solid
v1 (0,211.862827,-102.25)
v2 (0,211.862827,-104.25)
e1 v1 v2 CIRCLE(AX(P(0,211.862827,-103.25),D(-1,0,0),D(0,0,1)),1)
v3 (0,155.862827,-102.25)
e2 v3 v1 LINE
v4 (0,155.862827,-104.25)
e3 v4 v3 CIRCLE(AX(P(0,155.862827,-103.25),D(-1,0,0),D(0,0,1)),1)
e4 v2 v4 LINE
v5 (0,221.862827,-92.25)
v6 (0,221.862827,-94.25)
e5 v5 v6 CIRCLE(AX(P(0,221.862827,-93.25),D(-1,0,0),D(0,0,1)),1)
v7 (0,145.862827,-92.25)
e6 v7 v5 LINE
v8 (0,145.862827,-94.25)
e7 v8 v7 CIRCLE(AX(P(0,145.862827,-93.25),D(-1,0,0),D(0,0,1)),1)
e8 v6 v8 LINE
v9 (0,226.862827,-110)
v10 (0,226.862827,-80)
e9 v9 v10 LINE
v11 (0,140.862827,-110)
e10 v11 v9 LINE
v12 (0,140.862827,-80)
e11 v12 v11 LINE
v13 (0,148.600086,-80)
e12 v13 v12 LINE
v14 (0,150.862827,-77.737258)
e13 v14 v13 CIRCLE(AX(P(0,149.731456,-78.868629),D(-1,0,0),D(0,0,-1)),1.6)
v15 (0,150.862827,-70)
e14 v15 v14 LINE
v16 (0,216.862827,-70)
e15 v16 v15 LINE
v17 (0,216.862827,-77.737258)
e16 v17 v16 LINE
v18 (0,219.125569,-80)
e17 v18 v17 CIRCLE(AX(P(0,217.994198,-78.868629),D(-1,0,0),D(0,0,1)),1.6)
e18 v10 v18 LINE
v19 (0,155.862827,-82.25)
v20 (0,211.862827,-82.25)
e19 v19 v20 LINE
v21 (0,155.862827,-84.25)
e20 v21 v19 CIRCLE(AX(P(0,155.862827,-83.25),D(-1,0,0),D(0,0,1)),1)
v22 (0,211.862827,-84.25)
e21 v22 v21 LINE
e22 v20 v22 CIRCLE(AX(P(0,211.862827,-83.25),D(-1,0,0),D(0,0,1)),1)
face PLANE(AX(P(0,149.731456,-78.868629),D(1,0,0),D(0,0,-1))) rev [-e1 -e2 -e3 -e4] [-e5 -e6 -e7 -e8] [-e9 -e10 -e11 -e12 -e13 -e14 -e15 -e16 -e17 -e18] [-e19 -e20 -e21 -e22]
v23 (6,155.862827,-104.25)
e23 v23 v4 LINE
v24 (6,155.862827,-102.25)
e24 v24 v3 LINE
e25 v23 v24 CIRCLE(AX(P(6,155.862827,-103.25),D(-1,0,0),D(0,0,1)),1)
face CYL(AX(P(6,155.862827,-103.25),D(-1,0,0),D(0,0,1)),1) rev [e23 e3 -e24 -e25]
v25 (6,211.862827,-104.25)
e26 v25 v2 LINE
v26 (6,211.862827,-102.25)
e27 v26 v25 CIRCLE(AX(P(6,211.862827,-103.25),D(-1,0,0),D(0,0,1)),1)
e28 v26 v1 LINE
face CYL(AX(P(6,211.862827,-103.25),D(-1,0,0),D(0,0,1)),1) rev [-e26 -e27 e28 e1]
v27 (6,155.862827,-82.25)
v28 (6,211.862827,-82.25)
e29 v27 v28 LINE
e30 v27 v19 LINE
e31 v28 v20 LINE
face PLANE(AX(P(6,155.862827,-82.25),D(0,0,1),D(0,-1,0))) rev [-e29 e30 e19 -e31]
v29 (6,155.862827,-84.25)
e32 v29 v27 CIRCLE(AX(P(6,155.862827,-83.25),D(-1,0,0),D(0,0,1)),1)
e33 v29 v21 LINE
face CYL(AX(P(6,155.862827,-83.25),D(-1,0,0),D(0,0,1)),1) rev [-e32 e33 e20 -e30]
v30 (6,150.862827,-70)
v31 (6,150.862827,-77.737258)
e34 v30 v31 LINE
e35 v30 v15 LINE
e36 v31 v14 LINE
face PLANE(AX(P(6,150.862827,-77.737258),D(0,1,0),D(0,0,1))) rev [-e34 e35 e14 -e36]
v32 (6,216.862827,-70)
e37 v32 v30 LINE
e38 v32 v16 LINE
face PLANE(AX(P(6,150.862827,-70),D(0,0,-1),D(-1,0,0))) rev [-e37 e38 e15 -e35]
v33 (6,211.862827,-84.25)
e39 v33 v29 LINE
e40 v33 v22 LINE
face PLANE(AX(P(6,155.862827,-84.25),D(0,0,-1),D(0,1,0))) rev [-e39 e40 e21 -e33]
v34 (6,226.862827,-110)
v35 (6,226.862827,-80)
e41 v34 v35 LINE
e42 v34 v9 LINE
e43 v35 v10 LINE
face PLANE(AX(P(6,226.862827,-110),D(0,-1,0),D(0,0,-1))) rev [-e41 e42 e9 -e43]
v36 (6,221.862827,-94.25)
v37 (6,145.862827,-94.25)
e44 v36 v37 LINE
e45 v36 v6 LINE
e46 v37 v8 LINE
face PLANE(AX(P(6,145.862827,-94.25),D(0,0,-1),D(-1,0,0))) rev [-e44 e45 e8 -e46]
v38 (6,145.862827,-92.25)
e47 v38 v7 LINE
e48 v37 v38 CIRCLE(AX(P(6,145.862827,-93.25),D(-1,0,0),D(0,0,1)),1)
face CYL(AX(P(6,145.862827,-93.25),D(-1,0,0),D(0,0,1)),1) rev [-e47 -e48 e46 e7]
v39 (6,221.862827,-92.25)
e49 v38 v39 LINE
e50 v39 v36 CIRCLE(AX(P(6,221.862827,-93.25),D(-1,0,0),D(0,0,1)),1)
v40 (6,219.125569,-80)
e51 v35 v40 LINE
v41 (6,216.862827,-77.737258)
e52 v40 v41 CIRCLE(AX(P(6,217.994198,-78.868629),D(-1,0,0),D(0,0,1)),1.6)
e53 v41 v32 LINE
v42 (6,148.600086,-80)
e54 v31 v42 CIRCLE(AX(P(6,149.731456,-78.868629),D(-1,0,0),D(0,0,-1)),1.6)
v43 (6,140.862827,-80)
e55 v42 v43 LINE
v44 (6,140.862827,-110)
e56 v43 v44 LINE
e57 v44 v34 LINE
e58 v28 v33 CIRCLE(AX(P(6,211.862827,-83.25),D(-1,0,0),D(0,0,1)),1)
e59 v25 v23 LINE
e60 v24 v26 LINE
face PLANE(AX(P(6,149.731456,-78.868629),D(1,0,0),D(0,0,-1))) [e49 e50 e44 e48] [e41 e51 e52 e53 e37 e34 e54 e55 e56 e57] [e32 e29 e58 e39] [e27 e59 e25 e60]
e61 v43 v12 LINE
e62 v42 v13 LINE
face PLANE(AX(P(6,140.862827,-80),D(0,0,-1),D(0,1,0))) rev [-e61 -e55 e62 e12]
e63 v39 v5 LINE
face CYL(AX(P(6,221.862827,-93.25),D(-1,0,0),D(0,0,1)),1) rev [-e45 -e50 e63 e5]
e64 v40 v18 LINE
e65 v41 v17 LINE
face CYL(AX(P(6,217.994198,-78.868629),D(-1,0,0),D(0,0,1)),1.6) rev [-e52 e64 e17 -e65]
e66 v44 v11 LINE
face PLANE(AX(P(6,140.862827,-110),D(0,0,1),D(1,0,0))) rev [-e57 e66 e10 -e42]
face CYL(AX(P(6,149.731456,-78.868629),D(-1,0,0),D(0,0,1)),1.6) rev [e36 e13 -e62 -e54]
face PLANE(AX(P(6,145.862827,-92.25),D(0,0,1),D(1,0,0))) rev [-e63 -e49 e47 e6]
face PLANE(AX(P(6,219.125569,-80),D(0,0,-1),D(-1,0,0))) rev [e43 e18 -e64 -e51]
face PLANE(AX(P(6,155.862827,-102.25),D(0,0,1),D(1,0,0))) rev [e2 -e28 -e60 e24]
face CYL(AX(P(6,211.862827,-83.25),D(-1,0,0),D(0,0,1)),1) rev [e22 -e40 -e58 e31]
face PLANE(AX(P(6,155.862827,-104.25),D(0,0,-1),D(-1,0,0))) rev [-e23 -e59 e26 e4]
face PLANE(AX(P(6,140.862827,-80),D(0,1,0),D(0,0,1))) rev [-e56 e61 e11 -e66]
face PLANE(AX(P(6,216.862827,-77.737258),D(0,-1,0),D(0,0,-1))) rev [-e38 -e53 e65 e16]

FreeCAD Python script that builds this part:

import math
import FreeCAD as App
import Part
import Sketcher

V = App.Vector
Q = App.Units.Quantity

doc = App.newDocument("Part")
body = doc.addObject("PartDesign::Body", "Body")

# Sketch on YZ plane
sketch1 = doc.addObject("Sketcher::SketchObject", "Sketch")
body.addObject(sketch1)
sketch1.AttachmentSupport = (doc.YZ_Plane, [""])
sketch1.MapMode = "FlatFace"
sketch1.addGeometry([
    Part.LineSegment(V(226.862827, -110, 0), V(226.862827, -80, 0)),  # 0
    Part.LineSegment(V(226.862827, -80, 0), V(219.125569, -80, 0)),  # 1
    Part.ArcOfCircle(Part.Circle(V(217.994198, -78.868629, 0), V(0, 0, 1), 1.6), math.radians(135), math.radians(315)),  # 2
    Part.LineSegment(V(216.862827, -77.737258, 0), V(216.862827, -70, 0)),  # 3
    Part.LineSegment(V(216.862827, -70, 0), V(150.862827, -70, 0)),  # 4
    Part.LineSegment(V(150.862827, -70, 0), V(150.862827, -77.737258, 0)),  # 5
    Part.ArcOfCircle(Part.Circle(V(149.731456, -78.868629, 0), V(0, 0, 1), 1.6), math.radians(-135), math.radians(45)),  # 6
    Part.LineSegment(V(148.600086, -80, 0), V(140.862827, -80, 0)),  # 7
    Part.LineSegment(V(140.862827, -80, 0), V(140.862827, -110, 0)),  # 8
    Part.LineSegment(V(140.862827, -110, 0), V(226.862827, -110, 0)),  # 9
], False)
sketch1.addConstraint([
    Sketcher.Constraint("Coincident", 0, 2, 1, 1),
    Sketcher.Constraint("Coincident", 1, 2, 2, 2),
    Sketcher.Constraint("Coincident", 2, 1, 3, 1),
    Sketcher.Constraint("Coincident", 3, 2, 4, 1),
    Sketcher.Constraint("Coincident", 4, 2, 5, 1),
    Sketcher.Constraint("Coincident", 5, 2, 6, 2),
    Sketcher.Constraint("Coincident", 6, 1, 7, 1),
    Sketcher.Constraint("Coincident", 7, 2, 8, 1),
    Sketcher.Constraint("Coincident", 8, 2, 9, 1),
    Sketcher.Constraint("Coincident", 9, 2, 0, 1),
    Sketcher.Constraint("Vertical", 0),
    Sketcher.Constraint("Horizontal", 1),
    Sketcher.Constraint("Vertical", 3),
    Sketcher.Constraint("Horizontal", 4),
    Sketcher.Constraint("Vertical", 5),
    Sketcher.Constraint("Horizontal", 7),
    Sketcher.Constraint("Vertical", 8),
    Sketcher.Constraint("Horizontal", 9),
    Sketcher.Constraint("Equal", 2, 6),
    Sketcher.Constraint("Horizontal", 2, 3, 6, 3),
    Sketcher.Constraint("Horizontal", 2, 1, 5, 2),
    Sketcher.Constraint("Horizontal", 1, 2, 6, 1),
    Sketcher.Constraint("Equal", 1, 7),
    Sketcher.Constraint("Equal", 7, 3),
    Sketcher.Constraint("Radius", 2, Q("1.6 mm")),
    Sketcher.Constraint("DistanceX", 4, 2, 4, 1, Q("66 mm")),
    Sketcher.Constraint("DistanceX", 9, 1, 9, 2, Q("86 mm")),
    Sketcher.Constraint("DistanceY", 0, 1, 0, 2, Q("30 mm")),
    Sketcher.Constraint("DistanceY", 0, 2, -1, 1, Q("80 mm")),
    Sketcher.Constraint("DistanceY", 3, 2, -1, 1, Q("70 mm")),
    Sketcher.Constraint("DistanceX", -1, 1, 2, 3, Q("217.994198 mm")),
    Sketcher.Constraint("DistanceY", 2, 3, -1, 1, Q("78.868629 mm")),
])
pad1 = doc.addObject("PartDesign::Pad", "Pad")
body.addObject(pad1)
pad1.Profile = sketch1
pad1.Length = 6

# Sketch on YZ plane
sketch2 = doc.addObject("Sketcher::SketchObject", "Sketch001")
body.addObject(sketch2)
sketch2.AttachmentSupport = (doc.YZ_Plane, [""])
sketch2.MapMode = "FlatFace"
sketch2.addGeometry([
    Part.LineSegment(V(211.862827, -84.25, 0), V(155.862827, -84.25, 0)),  # 0
    Part.ArcOfCircle(Part.Circle(V(155.862827, -83.25, 0), V(0, 0, 1), 1), math.radians(90), math.radians(270)),  # 1
    Part.LineSegment(V(155.862827, -82.25, 0), V(211.862827, -82.25, 0)),  # 2
    Part.ArcOfCircle(Part.Circle(V(211.862827, -83.25, 0), V(0, 0, 1), 1), math.radians(-90), math.radians(90)),  # 3
    Part.LineSegment(V(221.862827, -94.25, 0), V(145.862827, -94.25, 0)),  # 4
    Part.ArcOfCircle(Part.Circle(V(145.862827, -93.25, 0), V(0, 0, 1), 1), math.radians(90), math.radians(270)),  # 5
    Part.LineSegment(V(145.862827, -92.25, 0), V(221.862827, -92.25, 0)),  # 6
    Part.ArcOfCircle(Part.Circle(V(221.862827, -93.25, 0), V(0, 0, 1), 1), math.radians(-90), math.radians(90)),  # 7
    Part.LineSegment(V(211.862827, -104.25, 0), V(155.862827, -104.25, 0)),  # 8
    Part.ArcOfCircle(Part.Circle(V(155.862827, -103.25, 0), V(0, 0, 1), 1), math.radians(90), math.radians(270)),  # 9
    Part.LineSegment(V(155.862827, -102.25, 0), V(211.862827, -102.25, 0)),  # 10
    Part.ArcOfCircle(Part.Circle(V(211.862827, -103.25, 0), V(0, 0, 1), 1), math.radians(-90), math.radians(90)),  # 11
], False)
sketch2.addConstraint([
    Sketcher.Constraint("Tangent", 0, 2, 1, 2),
    Sketcher.Constraint("Tangent", 1, 1, 2, 1),
    Sketcher.Constraint("Tangent", 2, 2, 3, 2),
    Sketcher.Constraint("Tangent", 3, 1, 0, 1),
    Sketcher.Constraint("Tangent", 4, 2, 5, 2),
    Sketcher.Constraint("Tangent", 5, 1, 6, 1),
    Sketcher.Constraint("Tangent", 6, 2, 7, 2),
    Sketcher.Constraint("Tangent", 7, 1, 4, 1),
    Sketcher.Constraint("Tangent", 8, 2, 9, 2),
    Sketcher.Constraint("Tangent", 9, 1, 10, 1),
    Sketcher.Constraint("Tangent", 10, 2, 11, 2),
    Sketcher.Constraint("Tangent", 11, 1, 8, 1),
    Sketcher.Constraint("Horizontal", 0),
    Sketcher.Constraint("Horizontal", 2),
    Sketcher.Constraint("Horizontal", 4),
    Sketcher.Constraint("Horizontal", 6),
    Sketcher.Constraint("Horizontal", 8),
    Sketcher.Constraint("Horizontal", 10),
    Sketcher.Constraint("Equal", 3, 5),
    Sketcher.Constraint("Equal", 7, 9),
    Sketcher.Constraint("Vertical", 1, 3, 9, 3),
    Sketcher.Constraint("Vertical", 3, 3, 11, 3),
    Sketcher.Constraint("Radius", 1, Q("1 mm")),
    Sketcher.Constraint("DistanceX", 0, 2, 0, 1, Q("56 mm")),
    Sketcher.Constraint("DistanceX", 4, 2, 4, 1, Q("76 mm")),
    Sketcher.Constraint("DistanceX", 5, 3, 1, 3, Q("10 mm")),
    Sketcher.Constraint("DistanceY", 5, 3, 1, 3, Q("10 mm")),
    Sketcher.Constraint("DistanceY", 9, 3, 5, 3, Q("10 mm")),
    Sketcher.Constraint("DistanceY", 1, 3, -1, 1, Q("83.25 mm")),
    Sketcher.Constraint("DistanceX", -1, 1, 1, 3, Q("155.862827 mm")),
])
pocket1 = doc.addObject("PartDesign::Pocket", "Pocket")
body.addObject(pocket1)
pocket1.Profile = sketch2
pocket1.Type = "ThroughAll"
pocket1.Reversed = True

doc.recompute()
